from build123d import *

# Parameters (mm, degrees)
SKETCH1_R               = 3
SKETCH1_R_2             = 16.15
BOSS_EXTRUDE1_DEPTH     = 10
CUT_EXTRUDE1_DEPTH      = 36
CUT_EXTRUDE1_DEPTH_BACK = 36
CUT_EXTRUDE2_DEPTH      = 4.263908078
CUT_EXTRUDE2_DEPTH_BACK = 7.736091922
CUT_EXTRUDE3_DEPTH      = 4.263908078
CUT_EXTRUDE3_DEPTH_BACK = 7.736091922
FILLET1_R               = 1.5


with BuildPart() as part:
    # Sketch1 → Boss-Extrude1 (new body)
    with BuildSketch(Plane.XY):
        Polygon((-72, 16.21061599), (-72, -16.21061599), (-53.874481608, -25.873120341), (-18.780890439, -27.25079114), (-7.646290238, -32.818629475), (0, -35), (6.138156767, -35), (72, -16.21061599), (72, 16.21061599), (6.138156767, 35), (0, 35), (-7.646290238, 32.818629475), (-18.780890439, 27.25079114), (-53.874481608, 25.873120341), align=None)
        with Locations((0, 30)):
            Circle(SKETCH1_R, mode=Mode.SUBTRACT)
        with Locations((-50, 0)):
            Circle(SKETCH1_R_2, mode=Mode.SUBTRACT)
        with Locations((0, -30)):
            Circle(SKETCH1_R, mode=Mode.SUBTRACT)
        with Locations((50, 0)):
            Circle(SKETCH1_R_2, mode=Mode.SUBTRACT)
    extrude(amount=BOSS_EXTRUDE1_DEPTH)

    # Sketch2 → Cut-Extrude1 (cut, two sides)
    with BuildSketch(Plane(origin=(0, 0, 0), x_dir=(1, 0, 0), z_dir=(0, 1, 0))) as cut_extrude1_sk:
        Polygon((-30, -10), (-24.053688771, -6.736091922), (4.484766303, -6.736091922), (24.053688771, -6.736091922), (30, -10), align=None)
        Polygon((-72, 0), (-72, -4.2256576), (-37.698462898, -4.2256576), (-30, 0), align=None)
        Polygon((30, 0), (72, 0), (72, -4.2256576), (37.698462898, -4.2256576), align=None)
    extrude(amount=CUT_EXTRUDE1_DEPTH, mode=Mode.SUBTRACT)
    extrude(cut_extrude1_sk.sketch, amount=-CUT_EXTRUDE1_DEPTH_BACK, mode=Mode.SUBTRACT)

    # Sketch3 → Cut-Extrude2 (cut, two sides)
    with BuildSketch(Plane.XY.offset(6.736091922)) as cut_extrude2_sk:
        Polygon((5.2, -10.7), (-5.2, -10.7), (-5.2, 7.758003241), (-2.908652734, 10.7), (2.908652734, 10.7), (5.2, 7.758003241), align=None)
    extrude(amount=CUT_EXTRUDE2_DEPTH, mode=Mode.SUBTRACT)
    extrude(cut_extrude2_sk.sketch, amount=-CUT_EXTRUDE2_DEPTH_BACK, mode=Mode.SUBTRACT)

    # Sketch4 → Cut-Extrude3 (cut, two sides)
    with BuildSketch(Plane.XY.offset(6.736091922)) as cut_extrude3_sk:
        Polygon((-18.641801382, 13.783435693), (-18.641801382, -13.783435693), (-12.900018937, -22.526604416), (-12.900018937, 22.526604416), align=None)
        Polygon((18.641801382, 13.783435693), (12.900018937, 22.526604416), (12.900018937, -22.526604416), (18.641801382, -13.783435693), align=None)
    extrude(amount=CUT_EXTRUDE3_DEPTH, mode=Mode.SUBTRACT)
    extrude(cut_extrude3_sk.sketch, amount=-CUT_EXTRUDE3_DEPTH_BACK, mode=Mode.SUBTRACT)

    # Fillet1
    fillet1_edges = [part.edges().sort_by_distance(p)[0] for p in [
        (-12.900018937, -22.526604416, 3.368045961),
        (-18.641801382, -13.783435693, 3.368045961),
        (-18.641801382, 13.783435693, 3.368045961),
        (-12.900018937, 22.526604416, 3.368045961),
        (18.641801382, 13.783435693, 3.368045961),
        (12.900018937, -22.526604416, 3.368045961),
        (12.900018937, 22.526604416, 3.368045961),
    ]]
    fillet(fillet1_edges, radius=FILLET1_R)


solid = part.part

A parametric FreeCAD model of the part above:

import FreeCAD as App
import Part
import Sketcher


def edges_at(feature, points):
    """Names of the edges that pass closest to the given points."""
    edges = feature.Shape.Edges
    near = lambda p: min(range(len(edges)), key=lambda i: edges[i].distToShape(Part.Vertex(*p))[0])
    return sorted({f"Edge{near(p) + 1}" for p in points})


def add_polygon(sketch, points):
    """Adds a closed chain of lines whose ends are joined by coincident constraints."""
    first, n = sketch.GeometryCount, len(points)
    for a, b in zip(points, points[1:] + points[:1]):
        sketch.addGeometry(Part.LineSegment(App.Vector(*a, 0), App.Vector(*b, 0)), False)
    for i in range(n):
        sketch.addConstraint(Sketcher.Constraint("Coincident", first + i, 2, first + (i + 1) % n, 1))

doc = App.newDocument("Part")
body = doc.addObject("PartDesign::Body", "Body")

# Sketch on XY plane
sketch1 = body.newObject("Sketcher::SketchObject", "Sketch")
sketch1.AttachmentSupport = (doc.getObject("XY_Plane"), [""])
sketch1.MapMode = "FlatFace"
add_polygon(sketch1, [(-72, 16.210616), (-72, -16.210616), (-53.874482, -25.87312), (-18.78089, -27.250791), (-7.64629, -32.818629), (0, -35), (6.138157, -35), (72, -16.210616), (72, 16.210616), (6.138157, 35), (0, 35), (-7.64629, 32.818629), (-18.78089, 27.250791), (-53.874482, 25.87312)])  # lines 0-13
sketch1.addGeometry(Part.Circle(App.Vector(0, -30, 0), App.Vector(0, 0, 1), 3), False)  # 14
sketch1.addGeometry(Part.Circle(App.Vector(-50, 0, 0), App.Vector(0, 0, 1), 16.15), False)  # 15
sketch1.addGeometry(Part.Circle(App.Vector(0, 30, 0), App.Vector(0, 0, 1), 3), False)  # 16
sketch1.addGeometry(Part.Circle(App.Vector(50, 0, 0), App.Vector(0, 0, 1), 16.15), False)  # 17
sketch1.addConstraint(Sketcher.Constraint("Vertical", 0))
sketch1.addConstraint(Sketcher.Constraint("Horizontal", 5))
sketch1.addConstraint(Sketcher.Constraint("Vertical", 7))
sketch1.addConstraint(Sketcher.Constraint("Horizontal", 9))
sketch1.addConstraint(Sketcher.Constraint("Equal", 14, 16))
sketch1.addConstraint(Sketcher.Constraint("Equal", 15, 17))
sketch1.addConstraint(Sketcher.Constraint("Symmetric", 14, 3, 16, 3, -1, 1))
sketch1.addConstraint(Sketcher.Constraint("Symmetric", 15, 3, 17, 3, -1, 1))
sketch1.addConstraint(Sketcher.Constraint("Symmetric", 0, 2, 7, 2, -1, 1))
sketch1.addConstraint(Sketcher.Constraint("Symmetric", 4, 2, 9, 2, -1, 1))
sketch1.addConstraint(Sketcher.Constraint("Symmetric", 3, 2, 10, 2, -1))
sketch1.addConstraint(Sketcher.Constraint("Symmetric", 2, 2, 11, 2, -1))
sketch1.addConstraint(Sketcher.Constraint("Symmetric", 1, 2, 12, 2, -1))
sketch1.addConstraint(Sketcher.Constraint("PointOnObject", 14, 3, -2))
sketch1.addConstraint(Sketcher.Constraint("PointOnObject", 15, 3, -1))
sketch1.addConstraint(Sketcher.Constraint("PointOnObject", 4, 2, -2))
sketch1.addConstraint(Sketcher.Constraint("Parallel", 4, 8))
sketch1.addConstraint(Sketcher.Constraint("Parallel", 6, 10))
sketch1.addConstraint(Sketcher.Constraint("Horizontal", 0, 2, 6, 2))
sketch1.addConstraint(Sketcher.Constraint("Horizontal", 7, 2, 13, 2))
sketch1.addConstraint(Sketcher.Constraint("Diameter", 14, 6.0))
sketch1.addConstraint(Sketcher.Constraint("Diameter", 15, 32.3))
sketch1.addConstraint(Sketcher.Constraint("DistanceY", 14, 3, -1, 1, 30.0))
sketch1.addConstraint(Sketcher.Constraint("DistanceX", 15, 3, -1, 1, 50.0))
sketch1.addConstraint(Sketcher.Constraint("DistanceX", 0, 2, -1, 1, 72.0))
sketch1.addConstraint(Sketcher.Constraint("DistanceY", 4, 2, -1, 1, 35.0))
sketch1.addConstraint(Sketcher.Constraint("DistanceY", 0, 2, 0, 1, 32.421232))
sketch1.addConstraint(Sketcher.Constraint("DistanceX", 2, 2, 3, 2, 11.1346))
sketch1.addConstraint(Sketcher.Constraint("Distance", 4, 7.95136))
sketch1.addConstraint(Sketcher.Constraint("DistanceX", 5, 1, 5, 2, 6.138157))
sketch1.addConstraint(Sketcher.Constraint("DistanceX", 1, 2, -1, 1, 53.874482))
sketch1.addConstraint(Sketcher.Constraint("DistanceY", 1, 2, -1, 1, 25.87312))
sketch1.addConstraint(Sketcher.Constraint("DistanceY", 2, 2, -1, 1, 27.250791))
pad1 = body.newObject("PartDesign::Pad", "Pad")
pad1.Profile = sketch1
pad1.Length = 10

# Sketch on XZ plane
sketch2 = body.newObject("Sketcher::SketchObject", "Sketch001")
sketch2.AttachmentSupport = (doc.getObject("XZ_Plane"), [""])
sketch2.MapMode = "FlatFace"
add_polygon(sketch2, [(-24.053689, 6.736092), (-30, 10), (30, 10), (24.053689, 6.736092)])  # lines 0-3
add_polygon(sketch2, [(-72, 0), (-72, 4.225658), (-37.698463, 4.225658), (-30, 0)])  # lines 4-7
add_polygon(sketch2, [(72, 0), (30, 0), (37.698463, 4.225658), (72, 4.225658)])  # lines 8-11
sketch2.addConstraint(Sketcher.Constraint("Horizontal", 1))
sketch2.addConstraint(Sketcher.Constraint("Horizontal", 3))
sketch2.addConstraint(Sketcher.Constraint("Vertical", 4))
sketch2.addConstraint(Sketcher.Constraint("Horizontal", 5))
sketch2.addConstraint(Sketcher.Constraint("Horizontal", 7))
sketch2.addConstraint(Sketcher.Constraint("Horizontal", 8))
sketch2.addConstraint(Sketcher.Constraint("Horizontal", 10))
sketch2.addConstraint(Sketcher.Constraint("Vertical", 11))
sketch2.addConstraint(Sketcher.Constraint("Symmetric", 6, 2, 8, 2, -1, 1))
sketch2.addConstraint(Sketcher.Constraint("Symmetric", 5, 2, 9, 2, -2))
sketch2.addConstraint(Sketcher.Constraint("Symmetric", 7, 2, 11, 2, -2))
sketch2.addConstraint(Sketcher.Constraint("Parallel", 0, 6))
sketch2.addConstraint(Sketcher.Constraint("Parallel", 2, 9))
sketch2.addConstraint(Sketcher.Constraint("Vertical", 0, 2, 6, 2))
sketch2.addConstraint(Sketcher.Constraint("Vertical", 1, 2, 8, 2))
sketch2.addConstraint(Sketcher.Constraint("DistanceX", 1, 1, 1, 2, 60.0))
sketch2.addConstraint(Sketcher.Constraint("DistanceX", 7, 2, 7, 1, 42.0))
sketch2.addConstraint(Sketcher.Constraint("DistanceY", -1, 1, 0, 2, 10.0))
sketch2.addConstraint(Sketcher.Constraint("DistanceX", 3, 2, 3, 1, 48.107378))
sketch2.addConstraint(Sketcher.Constraint("DistanceX", 5, 1, 5, 2, 34.301537))
sketch2.addConstraint(Sketcher.Constraint("DistanceY", 4, 1, 4, 2, 4.225658))
pocket1 = body.newObject("PartDesign::Pocket", "Pocket")
pocket1.Profile = sketch2
pocket1.Type = "ThroughAll"
pocket1.Midplane = True

# Sketch on XY plane
sketch3 = body.newObject("Sketcher::SketchObject", "Sketch002")
sketch3.AttachmentSupport = (doc.getObject("XY_Plane"), [""])
sketch3.MapMode = "FlatFace"
sketch3.AttachmentOffset = App.Placement(App.Vector(0, 0, 6.736092), App.Rotation())
add_polygon(sketch3, [(-5.2, -10.7), (5.2, -10.7), (5.2, 7.758003), (2.908653, 10.7), (-2.908653, 10.7), (-5.2, 7.758003)])  # lines 0-5
sketch3.addConstraint(Sketcher.Constraint("Horizontal", 0))
sketch3.addConstraint(Sketcher.Constraint("Vertical", 1))
sketch3.addConstraint(Sketcher.Constraint("Horizontal", 3))
sketch3.addConstraint(Sketcher.Constraint("Vertical", 5))
sketch3.addConstraint(Sketcher.Constraint("Symmetric", 1, 2, 4, 2, -2))
sketch3.addConstraint(Sketcher.Constraint("Equal", 2, 4))
sketch3.addConstraint(Sketcher.Constraint("DistanceX", 0, 1, 0, 2, 10.4))
sketch3.addConstraint(Sketcher.Constraint("DistanceY", 0, 2, -1, 1, 10.7))
sketch3.addConstraint(Sketcher.Constraint("DistanceY", -1, 1, 2, 2, 10.7))
sketch3.addConstraint(Sketcher.Constraint("DistanceX", 3, 2, 3, 1, 5.817305))
sketch3.addConstraint(Sketcher.Constraint("DistanceY", 1, 1, 1, 2, 18.458003))
pocket2 = body.newObject("PartDesign::Pocket", "Pocket001")
pocket2.Profile = sketch3
pocket2.Type = "ThroughAll"
pocket2.Midplane = True

# Sketch on XY plane
sketch4 = body.newObject("Sketcher::SketchObject", "Sketch003")
sketch4.AttachmentSupport = (doc.getObject("XY_Plane"), [""])
sketch4.MapMode = "FlatFace"
sketch4.AttachmentOffset = App.Placement(App.Vector(0, 0, 6.736092), App.Rotation())
add_polygon(sketch4, [(-18.641801, 13.783436), (-18.641801, -13.783436), (-12.900019, -22.526604), (-12.900019, 22.526604)])  # lines 0-3
add_polygon(sketch4, [(18.641801, 13.783436), (12.900019, 22.526604), (12.900019, -22.526604), (18.641801, -13.783436)])  # lines 4-7
sketch4.addConstraint(Sketcher.Constraint("Vertical", 0))
sketch4.addConstraint(Sketcher.Constraint("Vertical", 2))
sketch4.addConstraint(Sketcher.Constraint("Vertical", 5))
sketch4.addConstraint(Sketcher.Constraint("Vertical", 7))
sketch4.addConstraint(Sketcher.Constraint("Symmetric", 1, 2, 4, 2, -1, 1))
sketch4.addConstraint(Sketcher.Constraint("Symmetric", 3, 2, 6, 2, -1, 1))
sketch4.addConstraint(Sketcher.Constraint("Parallel", 1, 4))
sketch4.addConstraint(Sketcher.Constraint("Parallel", 3, 6))
sketch4.addConstraint(Sketcher.Constraint("Horizontal", 2, 2, 4, 2))
sketch4.addConstraint(Sketcher.Constraint("Horizontal", 0, 2, 6, 2))
sketch4.addConstraint(Sketcher.Constraint("DistanceY", 0, 2, 0, 1, 27.566871))
sketch4.addConstraint(Sketcher.Constraint("DistanceY", 2, 1, 2, 2, 45.053209))
sketch4.addConstraint(Sketcher.Constraint("DistanceX", 0, 2, -1, 1, 18.641801))
sketch4.addConstraint(Sketcher.Constraint("DistanceX", 1, 2, -1, 1, 12.900019))
pocket3 = body.newObject("PartDesign::Pocket", "Pocket002")
pocket3.Profile = sketch4
pocket3.Type = "ThroughAll"
pocket3.Midplane = True
doc.recompute()

fillet = body.newObject("PartDesign::Fillet", "Fillet")
fillet.Base = (pocket3, edges_at(pocket3, [
    (-12.9, -22.527, 3.368),
    (-18.642, -13.783, 3.368),
    (-18.642, 13.783, 3.368),
    (-12.9, 22.527, 3.368),
    (18.642, 13.783, 3.368),
    (12.9, -22.527, 3.368),
    (12.9, 22.527, 3.368),
]))
fillet.Radius = 1.5

doc.recompute()
